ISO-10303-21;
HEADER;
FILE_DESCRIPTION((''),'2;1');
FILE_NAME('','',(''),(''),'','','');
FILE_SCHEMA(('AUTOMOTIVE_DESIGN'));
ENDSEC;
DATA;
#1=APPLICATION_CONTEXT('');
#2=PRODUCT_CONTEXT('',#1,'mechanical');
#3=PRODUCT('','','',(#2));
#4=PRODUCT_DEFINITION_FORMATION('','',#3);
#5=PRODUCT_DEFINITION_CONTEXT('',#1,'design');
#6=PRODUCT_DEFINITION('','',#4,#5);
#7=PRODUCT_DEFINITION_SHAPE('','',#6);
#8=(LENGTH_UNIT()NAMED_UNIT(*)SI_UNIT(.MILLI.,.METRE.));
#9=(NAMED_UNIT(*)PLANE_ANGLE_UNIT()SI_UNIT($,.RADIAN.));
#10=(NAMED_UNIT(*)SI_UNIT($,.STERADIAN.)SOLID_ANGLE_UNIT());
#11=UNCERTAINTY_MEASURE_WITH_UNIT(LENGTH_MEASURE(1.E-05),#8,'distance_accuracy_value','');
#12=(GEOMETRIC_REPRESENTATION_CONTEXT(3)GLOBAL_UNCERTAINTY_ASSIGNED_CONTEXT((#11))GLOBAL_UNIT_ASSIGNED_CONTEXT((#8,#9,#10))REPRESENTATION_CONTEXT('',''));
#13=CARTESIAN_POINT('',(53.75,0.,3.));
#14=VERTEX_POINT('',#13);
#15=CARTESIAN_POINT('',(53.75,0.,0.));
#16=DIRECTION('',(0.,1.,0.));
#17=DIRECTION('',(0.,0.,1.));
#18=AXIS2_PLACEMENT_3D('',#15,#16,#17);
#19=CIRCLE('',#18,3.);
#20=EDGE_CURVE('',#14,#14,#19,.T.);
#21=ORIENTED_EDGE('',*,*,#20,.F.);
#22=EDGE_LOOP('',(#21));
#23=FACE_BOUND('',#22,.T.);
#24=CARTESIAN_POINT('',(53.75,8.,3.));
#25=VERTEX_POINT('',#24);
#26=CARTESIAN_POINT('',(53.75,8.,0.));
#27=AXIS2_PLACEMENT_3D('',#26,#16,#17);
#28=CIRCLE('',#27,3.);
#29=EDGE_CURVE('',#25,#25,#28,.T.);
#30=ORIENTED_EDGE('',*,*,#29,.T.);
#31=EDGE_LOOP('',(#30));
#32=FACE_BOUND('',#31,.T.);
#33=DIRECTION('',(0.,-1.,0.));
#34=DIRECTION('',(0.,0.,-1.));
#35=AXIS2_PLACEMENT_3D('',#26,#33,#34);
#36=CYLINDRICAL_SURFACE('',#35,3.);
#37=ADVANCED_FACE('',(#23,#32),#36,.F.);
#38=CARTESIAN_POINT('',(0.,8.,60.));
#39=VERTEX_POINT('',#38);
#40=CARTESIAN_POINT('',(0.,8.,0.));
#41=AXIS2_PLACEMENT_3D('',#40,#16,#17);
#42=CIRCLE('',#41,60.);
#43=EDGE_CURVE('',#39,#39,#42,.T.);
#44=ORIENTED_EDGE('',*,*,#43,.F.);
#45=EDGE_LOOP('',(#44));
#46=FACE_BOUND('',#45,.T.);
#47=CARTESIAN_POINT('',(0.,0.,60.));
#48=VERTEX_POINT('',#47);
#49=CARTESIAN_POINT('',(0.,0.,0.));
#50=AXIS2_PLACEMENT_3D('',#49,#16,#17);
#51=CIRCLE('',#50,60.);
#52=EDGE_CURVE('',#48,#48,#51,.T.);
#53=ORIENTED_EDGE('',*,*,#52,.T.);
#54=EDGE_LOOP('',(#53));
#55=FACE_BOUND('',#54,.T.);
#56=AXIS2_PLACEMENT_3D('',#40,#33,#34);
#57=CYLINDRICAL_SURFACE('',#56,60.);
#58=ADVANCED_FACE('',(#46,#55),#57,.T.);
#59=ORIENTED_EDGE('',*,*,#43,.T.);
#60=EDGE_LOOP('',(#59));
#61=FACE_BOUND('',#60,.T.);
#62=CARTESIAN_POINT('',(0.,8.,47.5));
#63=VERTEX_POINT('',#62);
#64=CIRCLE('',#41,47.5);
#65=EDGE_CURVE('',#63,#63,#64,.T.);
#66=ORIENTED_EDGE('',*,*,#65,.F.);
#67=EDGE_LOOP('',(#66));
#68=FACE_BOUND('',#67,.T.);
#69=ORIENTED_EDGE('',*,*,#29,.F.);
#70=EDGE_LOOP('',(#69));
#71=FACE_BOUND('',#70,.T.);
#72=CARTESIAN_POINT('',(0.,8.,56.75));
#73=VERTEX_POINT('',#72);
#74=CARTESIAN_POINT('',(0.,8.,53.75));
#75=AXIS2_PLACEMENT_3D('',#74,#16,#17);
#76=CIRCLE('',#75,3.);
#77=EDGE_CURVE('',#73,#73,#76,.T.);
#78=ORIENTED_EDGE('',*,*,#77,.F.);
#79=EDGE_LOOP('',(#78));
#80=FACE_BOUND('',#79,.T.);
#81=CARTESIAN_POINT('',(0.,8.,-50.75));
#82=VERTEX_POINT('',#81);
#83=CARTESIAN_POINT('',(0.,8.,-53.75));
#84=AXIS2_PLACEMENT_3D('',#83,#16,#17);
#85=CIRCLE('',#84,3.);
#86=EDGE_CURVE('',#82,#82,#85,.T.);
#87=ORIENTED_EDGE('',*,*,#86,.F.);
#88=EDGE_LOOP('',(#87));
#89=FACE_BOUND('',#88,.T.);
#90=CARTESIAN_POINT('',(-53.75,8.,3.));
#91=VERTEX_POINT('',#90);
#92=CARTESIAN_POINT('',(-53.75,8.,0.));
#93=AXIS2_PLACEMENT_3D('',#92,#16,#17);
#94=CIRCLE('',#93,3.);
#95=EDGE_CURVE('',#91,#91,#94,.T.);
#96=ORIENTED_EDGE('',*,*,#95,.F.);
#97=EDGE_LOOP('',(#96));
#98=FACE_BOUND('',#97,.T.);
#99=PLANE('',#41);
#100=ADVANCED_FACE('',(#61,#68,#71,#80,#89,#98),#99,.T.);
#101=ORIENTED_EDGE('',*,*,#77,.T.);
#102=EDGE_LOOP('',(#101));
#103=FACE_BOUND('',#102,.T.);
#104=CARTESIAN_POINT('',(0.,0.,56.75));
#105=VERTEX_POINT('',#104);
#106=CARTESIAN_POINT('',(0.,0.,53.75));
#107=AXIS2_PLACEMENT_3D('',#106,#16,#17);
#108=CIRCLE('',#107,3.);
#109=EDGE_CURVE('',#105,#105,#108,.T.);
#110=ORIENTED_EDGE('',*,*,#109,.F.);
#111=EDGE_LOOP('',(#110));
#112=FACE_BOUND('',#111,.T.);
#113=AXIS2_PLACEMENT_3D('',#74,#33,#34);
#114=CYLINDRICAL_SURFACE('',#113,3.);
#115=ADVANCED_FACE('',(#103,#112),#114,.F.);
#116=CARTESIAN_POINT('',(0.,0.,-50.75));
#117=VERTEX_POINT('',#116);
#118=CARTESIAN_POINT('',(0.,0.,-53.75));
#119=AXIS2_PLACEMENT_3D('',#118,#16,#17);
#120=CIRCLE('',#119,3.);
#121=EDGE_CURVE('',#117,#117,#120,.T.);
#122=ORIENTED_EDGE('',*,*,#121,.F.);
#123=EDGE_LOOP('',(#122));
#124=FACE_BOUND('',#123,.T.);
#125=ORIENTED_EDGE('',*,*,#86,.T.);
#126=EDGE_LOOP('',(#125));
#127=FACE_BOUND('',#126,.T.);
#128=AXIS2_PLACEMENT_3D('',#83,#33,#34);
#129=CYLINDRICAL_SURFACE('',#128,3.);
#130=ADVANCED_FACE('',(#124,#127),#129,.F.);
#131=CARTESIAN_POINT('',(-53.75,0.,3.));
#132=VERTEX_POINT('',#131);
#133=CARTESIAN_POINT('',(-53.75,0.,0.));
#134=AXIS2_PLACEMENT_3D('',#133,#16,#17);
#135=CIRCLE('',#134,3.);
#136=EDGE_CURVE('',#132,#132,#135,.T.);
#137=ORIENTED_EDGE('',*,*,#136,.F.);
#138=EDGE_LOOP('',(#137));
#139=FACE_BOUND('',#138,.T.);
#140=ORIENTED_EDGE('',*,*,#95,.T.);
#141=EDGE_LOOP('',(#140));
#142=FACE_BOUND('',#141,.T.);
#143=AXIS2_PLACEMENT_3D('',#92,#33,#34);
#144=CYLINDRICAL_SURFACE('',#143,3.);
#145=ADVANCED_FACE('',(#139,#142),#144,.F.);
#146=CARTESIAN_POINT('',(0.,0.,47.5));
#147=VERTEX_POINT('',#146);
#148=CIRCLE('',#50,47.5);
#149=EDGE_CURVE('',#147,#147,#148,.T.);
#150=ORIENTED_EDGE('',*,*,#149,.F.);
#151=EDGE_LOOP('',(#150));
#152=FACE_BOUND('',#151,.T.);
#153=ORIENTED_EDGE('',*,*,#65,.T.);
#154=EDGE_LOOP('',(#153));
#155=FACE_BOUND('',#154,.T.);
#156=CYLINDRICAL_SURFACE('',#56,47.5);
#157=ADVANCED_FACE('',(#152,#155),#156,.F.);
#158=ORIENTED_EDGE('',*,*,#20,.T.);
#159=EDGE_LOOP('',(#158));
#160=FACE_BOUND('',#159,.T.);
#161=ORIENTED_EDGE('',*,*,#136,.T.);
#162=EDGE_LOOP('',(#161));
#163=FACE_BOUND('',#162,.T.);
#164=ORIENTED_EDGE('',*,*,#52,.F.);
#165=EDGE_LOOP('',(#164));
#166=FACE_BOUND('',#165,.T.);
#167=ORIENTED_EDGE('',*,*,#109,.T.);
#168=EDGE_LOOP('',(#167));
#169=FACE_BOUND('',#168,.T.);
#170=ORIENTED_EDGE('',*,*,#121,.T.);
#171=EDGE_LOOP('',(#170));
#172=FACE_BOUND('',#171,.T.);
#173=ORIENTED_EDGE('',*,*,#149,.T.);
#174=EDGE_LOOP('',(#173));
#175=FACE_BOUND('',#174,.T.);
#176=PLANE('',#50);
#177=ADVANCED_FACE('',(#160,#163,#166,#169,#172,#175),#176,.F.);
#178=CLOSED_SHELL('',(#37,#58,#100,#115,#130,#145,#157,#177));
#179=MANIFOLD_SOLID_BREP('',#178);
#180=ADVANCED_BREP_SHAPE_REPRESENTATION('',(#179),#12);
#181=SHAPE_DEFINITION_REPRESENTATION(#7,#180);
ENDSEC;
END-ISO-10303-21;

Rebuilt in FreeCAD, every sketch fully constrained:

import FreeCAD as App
import Part
import Sketcher
from FreeCAD import Vector

doc = App.newDocument("Part")
body = doc.addObject("PartDesign::Body", "Body")

# Sketch on XZ plane
sketch1 = doc.addObject("Sketcher::SketchObject", "Sketch")
body.addObject(sketch1)
sketch1.AttachmentSupport = (doc.XZ_Plane, [""])
sketch1.MapMode = "FlatFace"
sketch1.addGeometry(Part.Circle(Vector(0, 0, 0), Vector(0, 0, 1), 60), False)
sketch1.addGeometry(Part.Circle(Vector(0, 53.8, 0), Vector(0, 0, 1), 3), False)
sketch1.addGeometry(Part.Circle(Vector(-53.8, 0, 0), Vector(0, 0, 1), 3), False)
sketch1.addGeometry(Part.Circle(Vector(0, 0, 0), Vector(0, 0, 1), 47.5), False)
sketch1.addGeometry(Part.Circle(Vector(53.8, 0, 0), Vector(0, 0, 1), 3), False)
sketch1.addGeometry(Part.Circle(Vector(0, -53.8, 0), Vector(0, 0, 1), 3), False)
sketch1.addConstraint(Sketcher.Constraint("Coincident", 0, 3, -1, 1))
sketch1.addConstraint(Sketcher.Constraint("Coincident", 3, 3, -1, 1))
sketch1.addConstraint(Sketcher.Constraint("Equal", 1, 2))
sketch1.addConstraint(Sketcher.Constraint("Equal", 2, 4))
sketch1.addConstraint(Sketcher.Constraint("Equal", 4, 5))
sketch1.addConstraint(Sketcher.Constraint("Symmetric", 2, 3, 4, 3, -1, 1))
sketch1.addConstraint(Sketcher.Constraint("Symmetric", 1, 3, 5, 3, -1, 1))
sketch1.addConstraint(Sketcher.Constraint("PointOnObject", 1, 3, -2))
sketch1.addConstraint(Sketcher.Constraint("PointOnObject", 2, 3, -1))
sketch1.addConstraint(Sketcher.Constraint("Diameter", 0, 120.0))
sketch1.addConstraint(Sketcher.Constraint("Diameter", 1, 6.0))
sketch1.addConstraint(Sketcher.Constraint("Diameter", 3, 95.0))
sketch1.addConstraint(Sketcher.Constraint("DistanceX", 2, 3, 4, 3, 107.5))
sketch1.addConstraint(Sketcher.Constraint("DistanceY", 5, 3, 1, 3, 107.5))
pad1 = doc.addObject("PartDesign::Pad", "Pad")
body.addObject(pad1)
pad1.Profile = sketch1
pad1.Length = 8
pad1.Reversed = True

doc.recompute()
